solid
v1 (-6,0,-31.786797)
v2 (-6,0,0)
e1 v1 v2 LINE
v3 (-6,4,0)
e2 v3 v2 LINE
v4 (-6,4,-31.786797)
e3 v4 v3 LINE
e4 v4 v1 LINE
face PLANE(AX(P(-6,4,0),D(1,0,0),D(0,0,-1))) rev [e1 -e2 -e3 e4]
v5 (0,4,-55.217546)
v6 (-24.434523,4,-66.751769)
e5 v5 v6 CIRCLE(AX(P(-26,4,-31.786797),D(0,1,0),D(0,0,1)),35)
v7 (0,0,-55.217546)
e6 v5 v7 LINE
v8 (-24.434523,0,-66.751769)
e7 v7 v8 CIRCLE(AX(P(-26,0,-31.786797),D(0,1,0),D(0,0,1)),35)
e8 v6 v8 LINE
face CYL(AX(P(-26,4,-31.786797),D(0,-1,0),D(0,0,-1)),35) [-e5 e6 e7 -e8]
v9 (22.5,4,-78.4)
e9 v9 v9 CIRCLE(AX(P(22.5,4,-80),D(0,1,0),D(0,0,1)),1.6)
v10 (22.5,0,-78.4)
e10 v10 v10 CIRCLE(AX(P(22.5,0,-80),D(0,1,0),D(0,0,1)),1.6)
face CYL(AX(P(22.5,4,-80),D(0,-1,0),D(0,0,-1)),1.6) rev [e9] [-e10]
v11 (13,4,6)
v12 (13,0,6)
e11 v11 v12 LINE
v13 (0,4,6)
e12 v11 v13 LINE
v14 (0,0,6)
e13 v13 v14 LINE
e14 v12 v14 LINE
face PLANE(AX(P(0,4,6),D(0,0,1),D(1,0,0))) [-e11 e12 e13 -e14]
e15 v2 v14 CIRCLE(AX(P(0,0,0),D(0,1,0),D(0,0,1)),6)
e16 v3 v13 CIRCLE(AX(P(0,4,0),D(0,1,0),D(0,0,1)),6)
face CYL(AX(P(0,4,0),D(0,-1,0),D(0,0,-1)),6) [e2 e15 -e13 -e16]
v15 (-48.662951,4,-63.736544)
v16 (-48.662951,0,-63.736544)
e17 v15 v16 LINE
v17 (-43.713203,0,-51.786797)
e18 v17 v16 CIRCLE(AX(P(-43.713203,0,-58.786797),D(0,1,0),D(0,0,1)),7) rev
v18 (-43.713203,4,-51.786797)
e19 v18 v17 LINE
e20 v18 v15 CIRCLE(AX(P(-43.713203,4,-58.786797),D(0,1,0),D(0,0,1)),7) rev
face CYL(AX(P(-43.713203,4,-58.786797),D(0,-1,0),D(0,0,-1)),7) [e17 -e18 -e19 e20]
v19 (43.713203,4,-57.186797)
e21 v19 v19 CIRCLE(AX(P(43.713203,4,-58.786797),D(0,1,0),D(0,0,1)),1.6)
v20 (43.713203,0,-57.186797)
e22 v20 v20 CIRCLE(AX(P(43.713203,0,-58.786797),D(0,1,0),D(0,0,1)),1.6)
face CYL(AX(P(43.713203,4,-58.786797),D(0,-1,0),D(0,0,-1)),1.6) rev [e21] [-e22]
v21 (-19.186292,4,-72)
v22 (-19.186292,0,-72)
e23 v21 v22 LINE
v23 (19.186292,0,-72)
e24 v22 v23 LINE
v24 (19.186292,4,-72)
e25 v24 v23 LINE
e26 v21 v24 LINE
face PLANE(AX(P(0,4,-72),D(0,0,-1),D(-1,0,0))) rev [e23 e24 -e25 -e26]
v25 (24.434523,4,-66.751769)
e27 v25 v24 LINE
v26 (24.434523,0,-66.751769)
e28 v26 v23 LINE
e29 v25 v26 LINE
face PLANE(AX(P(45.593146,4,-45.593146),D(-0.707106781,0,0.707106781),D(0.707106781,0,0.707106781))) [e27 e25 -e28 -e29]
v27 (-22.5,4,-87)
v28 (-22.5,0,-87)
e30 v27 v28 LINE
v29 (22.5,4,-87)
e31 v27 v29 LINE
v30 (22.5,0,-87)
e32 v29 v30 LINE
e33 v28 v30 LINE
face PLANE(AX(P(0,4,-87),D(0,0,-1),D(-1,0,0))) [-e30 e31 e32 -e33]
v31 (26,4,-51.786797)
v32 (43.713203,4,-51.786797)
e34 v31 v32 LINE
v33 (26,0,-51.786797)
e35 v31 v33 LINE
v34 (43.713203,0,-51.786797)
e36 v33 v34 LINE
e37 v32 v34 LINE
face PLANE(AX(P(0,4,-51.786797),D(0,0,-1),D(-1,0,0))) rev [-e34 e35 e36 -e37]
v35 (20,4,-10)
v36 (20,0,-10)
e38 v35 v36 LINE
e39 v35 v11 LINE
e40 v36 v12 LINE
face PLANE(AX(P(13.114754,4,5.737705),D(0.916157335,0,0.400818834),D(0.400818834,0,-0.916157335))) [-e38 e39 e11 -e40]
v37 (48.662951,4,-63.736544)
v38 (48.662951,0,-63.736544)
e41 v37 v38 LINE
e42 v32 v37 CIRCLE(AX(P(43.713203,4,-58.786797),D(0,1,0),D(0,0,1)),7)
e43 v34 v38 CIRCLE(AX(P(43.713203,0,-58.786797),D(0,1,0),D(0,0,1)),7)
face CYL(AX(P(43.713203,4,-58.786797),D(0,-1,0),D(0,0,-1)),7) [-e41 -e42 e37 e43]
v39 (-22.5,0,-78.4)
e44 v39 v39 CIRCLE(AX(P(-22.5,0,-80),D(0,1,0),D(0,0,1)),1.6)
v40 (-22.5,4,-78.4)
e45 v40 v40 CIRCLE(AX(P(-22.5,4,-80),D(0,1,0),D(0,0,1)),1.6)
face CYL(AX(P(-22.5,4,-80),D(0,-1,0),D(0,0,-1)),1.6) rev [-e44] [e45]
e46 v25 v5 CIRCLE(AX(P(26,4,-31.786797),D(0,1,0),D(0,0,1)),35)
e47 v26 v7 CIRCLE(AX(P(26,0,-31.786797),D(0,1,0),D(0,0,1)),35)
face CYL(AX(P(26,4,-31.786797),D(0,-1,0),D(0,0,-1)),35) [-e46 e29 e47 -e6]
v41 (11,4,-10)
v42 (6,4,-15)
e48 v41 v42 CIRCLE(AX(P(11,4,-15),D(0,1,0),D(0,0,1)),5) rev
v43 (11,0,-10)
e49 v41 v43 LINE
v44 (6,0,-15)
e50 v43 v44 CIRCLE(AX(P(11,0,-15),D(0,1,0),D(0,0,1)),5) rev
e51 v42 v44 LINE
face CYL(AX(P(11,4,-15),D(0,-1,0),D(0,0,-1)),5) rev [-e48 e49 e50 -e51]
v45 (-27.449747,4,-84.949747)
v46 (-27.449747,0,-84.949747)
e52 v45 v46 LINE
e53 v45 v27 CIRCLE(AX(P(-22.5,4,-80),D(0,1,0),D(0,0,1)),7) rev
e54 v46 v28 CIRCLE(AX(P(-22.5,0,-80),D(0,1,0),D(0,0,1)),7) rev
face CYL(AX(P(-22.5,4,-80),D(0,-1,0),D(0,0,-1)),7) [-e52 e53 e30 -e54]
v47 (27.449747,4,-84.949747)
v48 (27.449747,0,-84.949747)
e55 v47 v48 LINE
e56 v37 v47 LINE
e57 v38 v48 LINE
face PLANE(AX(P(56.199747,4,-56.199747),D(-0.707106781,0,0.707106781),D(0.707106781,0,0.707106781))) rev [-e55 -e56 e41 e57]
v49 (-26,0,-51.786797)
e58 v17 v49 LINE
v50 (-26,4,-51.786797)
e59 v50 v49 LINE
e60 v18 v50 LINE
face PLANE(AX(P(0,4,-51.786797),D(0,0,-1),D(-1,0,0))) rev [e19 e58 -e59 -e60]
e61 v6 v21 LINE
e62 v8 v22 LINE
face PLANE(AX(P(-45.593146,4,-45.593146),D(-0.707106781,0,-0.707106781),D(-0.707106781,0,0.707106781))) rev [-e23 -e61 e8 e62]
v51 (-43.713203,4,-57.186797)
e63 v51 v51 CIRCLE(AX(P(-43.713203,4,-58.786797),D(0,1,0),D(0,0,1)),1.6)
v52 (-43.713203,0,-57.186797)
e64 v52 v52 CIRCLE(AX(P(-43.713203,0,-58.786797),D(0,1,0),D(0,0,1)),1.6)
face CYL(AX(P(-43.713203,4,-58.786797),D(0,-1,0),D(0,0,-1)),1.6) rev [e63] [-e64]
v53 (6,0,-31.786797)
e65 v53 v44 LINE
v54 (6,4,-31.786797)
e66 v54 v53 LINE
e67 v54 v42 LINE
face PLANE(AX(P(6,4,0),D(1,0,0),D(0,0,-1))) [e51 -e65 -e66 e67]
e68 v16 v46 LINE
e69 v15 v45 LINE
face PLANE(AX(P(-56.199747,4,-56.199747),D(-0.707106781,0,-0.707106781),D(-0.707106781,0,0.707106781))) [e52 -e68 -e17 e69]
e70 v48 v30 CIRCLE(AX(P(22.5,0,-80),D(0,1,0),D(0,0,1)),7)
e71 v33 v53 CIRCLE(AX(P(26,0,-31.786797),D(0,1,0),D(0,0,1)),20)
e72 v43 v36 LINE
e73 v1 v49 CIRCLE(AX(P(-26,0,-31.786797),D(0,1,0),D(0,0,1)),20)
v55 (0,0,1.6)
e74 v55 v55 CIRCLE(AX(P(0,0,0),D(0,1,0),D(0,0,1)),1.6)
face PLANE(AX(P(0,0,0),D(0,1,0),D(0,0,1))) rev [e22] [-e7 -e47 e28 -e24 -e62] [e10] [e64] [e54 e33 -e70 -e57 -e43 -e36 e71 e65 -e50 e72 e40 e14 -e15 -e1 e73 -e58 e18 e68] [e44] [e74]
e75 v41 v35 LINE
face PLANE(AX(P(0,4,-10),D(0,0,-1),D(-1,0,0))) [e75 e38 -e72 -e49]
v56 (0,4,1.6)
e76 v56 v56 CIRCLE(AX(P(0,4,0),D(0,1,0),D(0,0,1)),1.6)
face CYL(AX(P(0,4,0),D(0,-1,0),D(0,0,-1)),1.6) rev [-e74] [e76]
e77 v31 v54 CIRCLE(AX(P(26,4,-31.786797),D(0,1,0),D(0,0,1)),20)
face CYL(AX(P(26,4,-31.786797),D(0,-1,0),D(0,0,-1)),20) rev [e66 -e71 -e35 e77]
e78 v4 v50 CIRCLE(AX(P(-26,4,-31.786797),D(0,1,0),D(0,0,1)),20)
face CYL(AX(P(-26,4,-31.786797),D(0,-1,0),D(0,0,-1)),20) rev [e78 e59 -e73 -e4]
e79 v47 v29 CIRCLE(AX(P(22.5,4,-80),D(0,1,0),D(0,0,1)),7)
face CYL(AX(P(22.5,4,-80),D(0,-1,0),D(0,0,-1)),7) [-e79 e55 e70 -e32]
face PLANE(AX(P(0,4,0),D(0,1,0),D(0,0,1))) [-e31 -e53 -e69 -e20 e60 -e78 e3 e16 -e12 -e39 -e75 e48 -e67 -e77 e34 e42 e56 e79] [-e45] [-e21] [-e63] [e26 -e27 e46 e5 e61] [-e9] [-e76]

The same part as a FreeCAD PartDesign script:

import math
import FreeCAD as App
import Part
import Sketcher
from FreeCAD import Vector
Q = App.Units.Quantity

doc = App.newDocument("Part")
body = doc.addObject("PartDesign::Body", "Body")

# Sketch on XZ plane
sketch1 = body.newObject("Sketcher::SketchObject", "Sketch")
sketch1.AttachmentSupport = (doc.getObject("XZ_Plane"), [""])
sketch1.MapMode = "FlatFace"
sketch1.addGeometry([
    Part.LineSegment(Vector(20, -10, 0), Vector(11, -10, 0)),  # 0
    Part.ArcOfCircle(Part.Circle(Vector(11, -15, 0), Vector(0, 0, 1), 5), math.radians(90), math.radians(180)),  # 1
    Part.LineSegment(Vector(6, -15, 0), Vector(6, -31.8, 0)),  # 2
    Part.ArcOfCircle(Part.Circle(Vector(26, -31.8, 0), Vector(0, 0, 1), 20), math.radians(180), math.radians(270)),  # 3
    Part.LineSegment(Vector(26, -51.8, 0), Vector(43.7, -51.8, 0)),  # 4
    Part.ArcOfCircle(Part.Circle(Vector(43.7, -58.8, 0), Vector(0, 0, 1), 7), math.radians(-45), math.radians(90)),  # 5
    Part.LineSegment(Vector(48.7, -63.7, 0), Vector(27.4, -84.9, 0)),  # 6
    Part.ArcOfCircle(Part.Circle(Vector(22.5, -80, 0), Vector(0, 0, 1), 7), math.radians(-90), math.radians(-45)),  # 7
    Part.LineSegment(Vector(22.5, -87, 0), Vector(-22.5, -87, 0)),  # 8
    Part.ArcOfCircle(Part.Circle(Vector(-22.5, -80, 0), Vector(0, 0, 1), 7), math.radians(-135), math.radians(-90)),  # 9
    Part.LineSegment(Vector(-27.4, -84.9, 0), Vector(-48.7, -63.7, 0)),  # 10
    Part.ArcOfCircle(Part.Circle(Vector(-43.7, -58.8, 0), Vector(0, 0, 1), 7), math.radians(90), math.radians(225)),  # 11
    Part.LineSegment(Vector(-43.7, -51.8, 0), Vector(-26, -51.8, 0)),  # 12
    Part.ArcOfCircle(Part.Circle(Vector(-26, -31.8, 0), Vector(0, 0, 1), 20), math.radians(-90), math.radians(0)),  # 13
    Part.LineSegment(Vector(-6, -31.8, 0), Vector(-6, 0, 0)),  # 14
    Part.ArcOfCircle(Part.Circle(Vector(0, 0, 0), Vector(0, 0, 1), 6), math.radians(90), math.radians(180)),  # 15
    Part.LineSegment(Vector(0, 6, 0), Vector(13, 6, 0)),  # 16
    Part.LineSegment(Vector(13, 6, 0), Vector(20, -10, 0)),  # 17
    Part.Circle(Vector(0, 0, 0), Vector(0, 0, 1), 1.6),  # 18
    Part.Circle(Vector(43.7, -58.8, 0), Vector(0, 0, 1), 1.6),  # 19
    Part.Circle(Vector(22.5, -80, 0), Vector(0, 0, 1), 1.6),  # 20
    Part.Circle(Vector(-43.7, -58.8, 0), Vector(0, 0, 1), 1.6),  # 21
    Part.ArcOfCircle(Part.Circle(Vector(26, -31.8, 0), Vector(0, 0, 1), 35), math.radians(-138), math.radians(-93)),  # 22
    Part.ArcOfCircle(Part.Circle(Vector(-26, -31.8, 0), Vector(0, 0, 1), 35), math.radians(-87), math.radians(-42)),  # 23
    Part.LineSegment(Vector(-24.4, -66.8, 0), Vector(-19.2, -72, 0)),  # 24
    Part.LineSegment(Vector(-19.2, -72, 0), Vector(19.2, -72, 0)),  # 25
    Part.LineSegment(Vector(19.2, -72, 0), Vector(24.4, -66.8, 0)),  # 26
    Part.Circle(Vector(-22.5, -80, 0), Vector(0, 0, 1), 1.6),  # 27
], False)
sketch1.addConstraint([
    Sketcher.Constraint("Tangent", 0, 2, 1, 1),
    Sketcher.Constraint("Tangent", 1, 2, 2, 1),
    Sketcher.Constraint("Tangent", 2, 2, 3, 1),
    Sketcher.Constraint("Tangent", 3, 2, 4, 1),
    Sketcher.Constraint("Tangent", 4, 2, 5, 2),
    Sketcher.Constraint("Tangent", 5, 1, 6, 1),
    Sketcher.Constraint("Tangent", 6, 2, 7, 2),
    Sketcher.Constraint("Tangent", 7, 1, 8, 1),
    Sketcher.Constraint("Tangent", 8, 2, 9, 2),
    Sketcher.Constraint("Tangent", 9, 1, 10, 1),
    Sketcher.Constraint("Tangent", 10, 2, 11, 2),
    Sketcher.Constraint("Tangent", 11, 1, 12, 1),
    Sketcher.Constraint("Tangent", 12, 2, 13, 1),
    Sketcher.Constraint("Tangent", 13, 2, 14, 1),
    Sketcher.Constraint("Tangent", 14, 2, 15, 2),
    Sketcher.Constraint("Tangent", 15, 1, 16, 1),
    Sketcher.Constraint("Coincident", 16, 2, 17, 1),
    Sketcher.Constraint("Coincident", 17, 2, 0, 1),
    Sketcher.Constraint("Coincident", 22, 1, 23, 2),
    Sketcher.Constraint("Coincident", 23, 1, 24, 1),
    Sketcher.Constraint("Coincident", 24, 2, 25, 1),
    Sketcher.Constraint("Coincident", 25, 2, 26, 1),
    Sketcher.Constraint("Coincident", 26, 2, 22, 2),
    Sketcher.Constraint("Horizontal", 0),
    Sketcher.Constraint("Vertical", 2),
    Sketcher.Constraint("Horizontal", 4),
    Sketcher.Constraint("Horizontal", 8),
    Sketcher.Constraint("Horizontal", 12),
    Sketcher.Constraint("Vertical", 14),
    Sketcher.Constraint("Horizontal", 16),
    Sketcher.Constraint("Horizontal", 25),
    Sketcher.Constraint("Coincident", 15, 3, -1, 1),
    Sketcher.Constraint("Coincident", 18, 3, -1, 1),
    Sketcher.Constraint("Coincident", 19, 3, 5, 3),
    Sketcher.Constraint("Coincident", 20, 3, 7, 3),
    Sketcher.Constraint("Coincident", 21, 3, 11, 3),
    Sketcher.Constraint("Coincident", 22, 3, 3, 3),
    Sketcher.Constraint("Coincident", 23, 3, 13, 3),
    Sketcher.Constraint("Coincident", 27, 3, 9, 3),
    Sketcher.Constraint("Equal", 5, 7),
    Sketcher.Constraint("Equal", 7, 9),
    Sketcher.Constraint("Equal", 9, 11),
    Sketcher.Constraint("Equal", 3, 13),
    Sketcher.Constraint("Equal", 18, 19),
    Sketcher.Constraint("Equal", 19, 20),
    Sketcher.Constraint("Equal", 20, 21),
    Sketcher.Constraint("Equal", 22, 23),
    Sketcher.Constraint("Equal", 21, 27),
    Sketcher.Constraint("Symmetric", 5, 3, 11, 3, -2),
    Sketcher.Constraint("Symmetric", 23, 1, 26, 2, -2),
    Sketcher.Constraint("Perpendicular", 6, 10),
    Sketcher.Constraint("Parallel", 10, 24),
    Sketcher.Constraint("Perpendicular", 24, 26),
    Sketcher.Constraint("Horizontal", 6, 2, 9, 1),
    Sketcher.Constraint("Radius", 1, Q("5 mm")),
    Sketcher.Constraint("Radius", 3, Q("20 mm")),
    Sketcher.Constraint("Radius", 5, Q("7 mm")),
    Sketcher.Constraint("Radius", 15, Q("6 mm")),
    Sketcher.Constraint("Radius", 22, Q("35 mm")),
    Sketcher.Constraint("Diameter", 18, Q("3.2 mm")),
    Sketcher.Constraint("DistanceX", 0, 2, 0, 1, Q("9 mm")),
    Sketcher.Constraint("DistanceX", 8, 2, 8, 1, Q("45 mm")),
    Sketcher.Constraint("DistanceX", 16, 1, 16, 2, Q("13 mm")),
    Sketcher.Constraint("Distance", 6, Q("30 mm")),
    Sketcher.Constraint("DistanceY", 1, 3, -1, 1, Q("15 mm")),
    Sketcher.Constraint("DistanceY", 7, 3, -1, 1, Q("80 mm")),
    Sketcher.Constraint("DistanceY", 24, 2, -1, 1, Q("72 mm")),
    Sketcher.Constraint("Distance", 24, Q("7.42212 mm")),
])
pad1 = body.newObject("PartDesign::Pad", "Pad")
pad1.Profile = sketch1
pad1.Length = 4
pad1.Reversed = True

doc.recompute()
